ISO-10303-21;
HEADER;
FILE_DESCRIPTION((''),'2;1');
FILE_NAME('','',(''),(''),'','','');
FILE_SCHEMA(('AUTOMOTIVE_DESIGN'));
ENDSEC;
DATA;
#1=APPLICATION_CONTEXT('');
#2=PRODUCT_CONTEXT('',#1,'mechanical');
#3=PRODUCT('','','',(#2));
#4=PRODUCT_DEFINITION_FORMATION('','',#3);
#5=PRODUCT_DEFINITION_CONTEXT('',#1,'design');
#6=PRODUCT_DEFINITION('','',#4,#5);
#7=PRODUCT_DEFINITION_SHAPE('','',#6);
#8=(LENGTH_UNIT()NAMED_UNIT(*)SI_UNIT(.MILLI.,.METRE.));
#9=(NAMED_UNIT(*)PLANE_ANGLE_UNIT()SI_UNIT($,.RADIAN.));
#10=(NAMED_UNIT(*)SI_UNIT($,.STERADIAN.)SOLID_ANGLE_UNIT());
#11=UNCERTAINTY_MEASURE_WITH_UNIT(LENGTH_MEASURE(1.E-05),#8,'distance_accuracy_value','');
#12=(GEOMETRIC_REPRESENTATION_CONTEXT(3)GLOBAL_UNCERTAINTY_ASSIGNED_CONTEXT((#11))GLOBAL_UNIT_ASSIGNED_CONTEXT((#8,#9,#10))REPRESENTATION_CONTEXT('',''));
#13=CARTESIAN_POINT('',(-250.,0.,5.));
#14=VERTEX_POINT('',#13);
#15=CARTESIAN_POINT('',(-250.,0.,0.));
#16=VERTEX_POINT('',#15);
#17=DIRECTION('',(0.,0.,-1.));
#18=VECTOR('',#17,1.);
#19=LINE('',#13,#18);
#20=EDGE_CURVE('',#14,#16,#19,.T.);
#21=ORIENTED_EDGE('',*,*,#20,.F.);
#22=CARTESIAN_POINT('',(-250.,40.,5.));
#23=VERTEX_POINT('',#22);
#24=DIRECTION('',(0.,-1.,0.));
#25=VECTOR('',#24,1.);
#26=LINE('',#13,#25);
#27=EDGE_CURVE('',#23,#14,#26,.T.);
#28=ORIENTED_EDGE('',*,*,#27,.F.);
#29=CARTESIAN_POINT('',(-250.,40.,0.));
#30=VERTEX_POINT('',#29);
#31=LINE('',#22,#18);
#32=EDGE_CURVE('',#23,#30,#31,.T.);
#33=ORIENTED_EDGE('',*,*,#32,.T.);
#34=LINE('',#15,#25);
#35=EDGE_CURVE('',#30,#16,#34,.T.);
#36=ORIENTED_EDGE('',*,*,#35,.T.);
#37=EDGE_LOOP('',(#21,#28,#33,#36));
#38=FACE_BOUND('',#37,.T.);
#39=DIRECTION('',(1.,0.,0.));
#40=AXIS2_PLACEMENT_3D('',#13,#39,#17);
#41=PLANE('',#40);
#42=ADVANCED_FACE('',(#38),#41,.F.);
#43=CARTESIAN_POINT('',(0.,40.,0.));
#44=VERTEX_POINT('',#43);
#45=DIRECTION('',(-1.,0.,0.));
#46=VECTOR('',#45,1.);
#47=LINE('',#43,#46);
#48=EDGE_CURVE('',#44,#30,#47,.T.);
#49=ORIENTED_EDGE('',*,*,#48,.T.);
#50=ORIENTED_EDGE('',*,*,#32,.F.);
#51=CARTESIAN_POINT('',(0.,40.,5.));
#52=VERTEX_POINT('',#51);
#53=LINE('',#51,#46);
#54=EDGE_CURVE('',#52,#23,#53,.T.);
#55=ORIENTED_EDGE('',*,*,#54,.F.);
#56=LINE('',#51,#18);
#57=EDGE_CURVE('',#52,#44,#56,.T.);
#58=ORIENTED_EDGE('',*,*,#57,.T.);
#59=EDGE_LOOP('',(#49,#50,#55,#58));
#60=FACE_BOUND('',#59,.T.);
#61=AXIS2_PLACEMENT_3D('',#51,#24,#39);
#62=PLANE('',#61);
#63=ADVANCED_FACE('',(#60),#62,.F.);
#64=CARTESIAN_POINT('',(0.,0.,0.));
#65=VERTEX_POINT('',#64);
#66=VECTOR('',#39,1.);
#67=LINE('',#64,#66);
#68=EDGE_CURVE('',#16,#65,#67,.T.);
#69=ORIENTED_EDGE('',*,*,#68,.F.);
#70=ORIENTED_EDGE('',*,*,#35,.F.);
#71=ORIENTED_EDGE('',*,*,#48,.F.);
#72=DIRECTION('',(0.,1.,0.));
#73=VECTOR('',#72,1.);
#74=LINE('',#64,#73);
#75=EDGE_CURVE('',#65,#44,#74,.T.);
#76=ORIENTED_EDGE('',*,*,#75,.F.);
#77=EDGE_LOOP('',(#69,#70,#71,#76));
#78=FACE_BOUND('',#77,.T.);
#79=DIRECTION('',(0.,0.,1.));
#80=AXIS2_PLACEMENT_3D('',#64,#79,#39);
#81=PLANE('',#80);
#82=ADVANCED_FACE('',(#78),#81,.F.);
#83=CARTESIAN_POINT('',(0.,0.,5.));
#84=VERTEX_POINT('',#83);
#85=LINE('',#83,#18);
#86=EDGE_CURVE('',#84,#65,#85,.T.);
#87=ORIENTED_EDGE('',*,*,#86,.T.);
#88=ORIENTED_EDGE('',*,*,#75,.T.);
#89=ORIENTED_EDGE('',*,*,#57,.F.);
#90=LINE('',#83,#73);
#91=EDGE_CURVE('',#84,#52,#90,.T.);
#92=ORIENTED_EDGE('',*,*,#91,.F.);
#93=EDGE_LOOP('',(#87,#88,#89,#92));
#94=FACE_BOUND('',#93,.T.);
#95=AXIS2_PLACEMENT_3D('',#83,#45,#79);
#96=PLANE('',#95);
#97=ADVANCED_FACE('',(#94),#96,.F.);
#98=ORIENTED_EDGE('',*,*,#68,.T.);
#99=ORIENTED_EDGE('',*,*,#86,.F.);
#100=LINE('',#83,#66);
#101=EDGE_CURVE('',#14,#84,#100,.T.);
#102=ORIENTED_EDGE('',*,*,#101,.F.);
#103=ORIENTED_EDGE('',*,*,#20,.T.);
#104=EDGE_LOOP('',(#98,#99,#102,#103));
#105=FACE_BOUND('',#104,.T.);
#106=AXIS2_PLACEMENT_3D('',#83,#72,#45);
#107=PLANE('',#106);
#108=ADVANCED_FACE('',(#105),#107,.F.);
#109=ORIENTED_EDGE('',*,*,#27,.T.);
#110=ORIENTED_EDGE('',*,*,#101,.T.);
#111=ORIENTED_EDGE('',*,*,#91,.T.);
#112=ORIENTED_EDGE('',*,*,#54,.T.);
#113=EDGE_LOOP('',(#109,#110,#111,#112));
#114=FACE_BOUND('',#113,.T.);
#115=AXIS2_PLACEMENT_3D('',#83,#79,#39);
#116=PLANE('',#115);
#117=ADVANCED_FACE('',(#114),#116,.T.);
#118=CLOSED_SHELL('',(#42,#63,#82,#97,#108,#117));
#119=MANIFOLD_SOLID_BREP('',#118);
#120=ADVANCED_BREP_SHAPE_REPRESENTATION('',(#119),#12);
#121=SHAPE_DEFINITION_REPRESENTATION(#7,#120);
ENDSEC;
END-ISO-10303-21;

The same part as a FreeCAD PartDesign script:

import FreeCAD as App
import Part
import Sketcher

V = App.Vector

doc = App.newDocument("Part")
params = doc.addObject("Spreadsheet::Sheet", "Params")
for row, (alias, value) in enumerate([
    ("sketch1_width", "250 mm"),
    ("sketch1_height", "40 mm"),
    ("pad1_length", "5 mm"),
], start=1):
    params.set(f"A{row}", alias)
    params.set(f"B{row}", "=" + value)
    params.setAlias(f"B{row}", alias)

body = doc.addObject("PartDesign::Body", "Body")

# Sketch on XY plane
sketch1 = doc.addObject("Sketcher::SketchObject", "Sketch")
body.addObject(sketch1)
sketch1.AttachmentSupport = (doc.XY_Plane, [""])
sketch1.MapMode = "FlatFace"
sketch1.addGeometry(Part.LineSegment(V(-250, 40, 0), V(-250, 0, 0)), False)
sketch1.addGeometry(Part.LineSegment(V(-250, 0, 0), V(0, 0, 0)), False)
sketch1.addGeometry(Part.LineSegment(V(0, 0, 0), V(0, 40, 0)), False)
sketch1.addGeometry(Part.LineSegment(V(0, 40, 0), V(-250, 40, 0)), False)
sketch1.addConstraint(Sketcher.Constraint("Coincident", 0, 2, 1, 1))
sketch1.addConstraint(Sketcher.Constraint("Coincident", 1, 2, 2, 1))
sketch1.addConstraint(Sketcher.Constraint("Coincident", 2, 2, 3, 1))
sketch1.addConstraint(Sketcher.Constraint("Coincident", 3, 2, 0, 1))
sketch1.addConstraint(Sketcher.Constraint("Vertical", 0))
sketch1.addConstraint(Sketcher.Constraint("Horizontal", 1))
sketch1.addConstraint(Sketcher.Constraint("Vertical", 2))
sketch1.addConstraint(Sketcher.Constraint("Horizontal", 3))
sketch1.addConstraint(Sketcher.Constraint("Coincident", 1, 2, -1, 1))
sketch1.addConstraint(Sketcher.Constraint("DistanceX", 1, 1, 1, 2, 250.0))
sketch1.addConstraint(Sketcher.Constraint("DistanceY", 0, 2, 0, 1, 40.0))
sketch1.setExpression("Constraints[9]", "Params.sketch1_width")
sketch1.setExpression("Constraints[10]", "Params.sketch1_height")
pad1 = doc.addObject("PartDesign::Pad", "Pad")
body.addObject(pad1)
pad1.Profile = sketch1
pad1.setExpression("Length", "Params.pad1_length")

doc.recompute()
